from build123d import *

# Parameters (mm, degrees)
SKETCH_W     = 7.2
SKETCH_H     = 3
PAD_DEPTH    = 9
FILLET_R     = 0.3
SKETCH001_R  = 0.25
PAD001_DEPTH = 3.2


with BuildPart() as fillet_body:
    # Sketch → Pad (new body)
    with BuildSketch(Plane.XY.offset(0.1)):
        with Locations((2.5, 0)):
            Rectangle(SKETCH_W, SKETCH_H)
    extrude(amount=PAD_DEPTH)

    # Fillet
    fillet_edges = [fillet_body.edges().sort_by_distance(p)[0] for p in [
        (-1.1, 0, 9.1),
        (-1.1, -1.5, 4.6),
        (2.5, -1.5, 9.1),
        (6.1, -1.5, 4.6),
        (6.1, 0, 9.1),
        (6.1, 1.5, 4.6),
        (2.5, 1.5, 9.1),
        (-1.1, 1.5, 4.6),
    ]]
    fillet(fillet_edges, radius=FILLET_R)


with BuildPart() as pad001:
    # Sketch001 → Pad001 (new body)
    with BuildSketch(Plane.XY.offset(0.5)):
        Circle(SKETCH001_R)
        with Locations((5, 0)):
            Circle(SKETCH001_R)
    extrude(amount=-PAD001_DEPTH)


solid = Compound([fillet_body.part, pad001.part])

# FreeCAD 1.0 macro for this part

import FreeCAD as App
import Part
import Sketcher

V = App.Vector


def edges_at(feature, points):
    """Names of the edges that pass closest to the given points."""
    edges = feature.Shape.Edges
    near = lambda p: min(range(len(edges)), key=lambda i: edges[i].distToShape(Part.Vertex(*p))[0])
    return sorted({f"Edge{near(p) + 1}" for p in points})

doc = App.newDocument("Part")
body = doc.addObject("PartDesign::Body", "Body")

sketch1 = body.newObject("Sketcher::SketchObject", "Sketch")
sketch1.AttachmentSupport = (doc.getObject("XY_Plane"), [""])
sketch1.MapMode = "FlatFace"
sketch1.AttachmentOffset = App.Placement(V(0, 0, 0.1), App.Rotation())
sketch1.addGeometry([
    Part.LineSegment(V(-1.1, 1.5, 0), V(-1.1, -1.5, 0)),
    Part.LineSegment(V(-1.1, -1.5, 0), V(6.1, -1.5, 0)),
    Part.LineSegment(V(6.1, -1.5, 0), V(6.1, 1.5, 0)),
    Part.LineSegment(V(6.1, 1.5, 0), V(-1.1, 1.5, 0)),
], False)
sketch1.addConstraint([
    Sketcher.Constraint("Coincident", 0, 2, 1, 1),
    Sketcher.Constraint("Coincident", 1, 2, 2, 1),
    Sketcher.Constraint("Coincident", 2, 2, 3, 1),
    Sketcher.Constraint("Coincident", 3, 2, 0, 1),
    Sketcher.Constraint("Vertical", 0),
    Sketcher.Constraint("Horizontal", 1),
    Sketcher.Constraint("Vertical", 2),
    Sketcher.Constraint("Horizontal", 3),
    Sketcher.Constraint("DistanceY", 0, 2, 0, 1, 3.0),
    Sketcher.Constraint("DistanceX", 1, 1, 1, 2, 7.2),
    Sketcher.Constraint("DistanceX", 0, 2, -1, 1, 1.1),
    Sketcher.Constraint("DistanceY", 0, 2, -1, 1, 1.5),
])
pad1 = body.newObject("PartDesign::Pad", "Pad")
pad1.Profile = sketch1
pad1.Length = 9
doc.recompute()

fillet = body.newObject("PartDesign::Fillet", "Fillet")
fillet.Base = (pad1, edges_at(pad1, [
    (-1.1, 0, 9.1),
    (-1.1, -1.5, 4.6),
    (2.5, -1.5, 9.1),
    (6.1, -1.5, 4.6),
    (6.1, 0, 9.1),
    (6.1, 1.5, 4.6),
    (2.5, 1.5, 9.1),
    (-1.1, 1.5, 4.6),
]))
fillet.Radius = 0.3
body2 = doc.addObject("PartDesign::Body", "Body001")
body2.AllowCompound = True

sketch2 = body2.newObject("Sketcher::SketchObject", "Sketch001")
sketch2.AttachmentSupport = (doc.getObject("XY_Plane001"), [""])
sketch2.MapMode = "FlatFace"
sketch2.AttachmentOffset = App.Placement(V(0, 0, 0.5), App.Rotation())
sketch2.addGeometry([
    Part.Circle(V(0, 0, 0), V(0, 0, 1), 0.25),
    Part.Circle(V(5, 0, 0), V(0, 0, 1), 0.25),
], False)
sketch2.addConstraint([
    Sketcher.Constraint("Coincident", 0, 3, -1, 1),
    Sketcher.Constraint("Equal", 0, 1),
    Sketcher.Constraint("PointOnObject", 1, 3, -1),
    Sketcher.Constraint("Diameter", 0, 0.5),
    Sketcher.Constraint("DistanceX", -1, 1, 1, 3, 5.0),
])
pad2 = body2.newObject("PartDesign::Pad", "Pad001")
pad2.Profile = sketch2
pad2.Length = 3.2
pad2.Reversed = True

doc.recompute()
